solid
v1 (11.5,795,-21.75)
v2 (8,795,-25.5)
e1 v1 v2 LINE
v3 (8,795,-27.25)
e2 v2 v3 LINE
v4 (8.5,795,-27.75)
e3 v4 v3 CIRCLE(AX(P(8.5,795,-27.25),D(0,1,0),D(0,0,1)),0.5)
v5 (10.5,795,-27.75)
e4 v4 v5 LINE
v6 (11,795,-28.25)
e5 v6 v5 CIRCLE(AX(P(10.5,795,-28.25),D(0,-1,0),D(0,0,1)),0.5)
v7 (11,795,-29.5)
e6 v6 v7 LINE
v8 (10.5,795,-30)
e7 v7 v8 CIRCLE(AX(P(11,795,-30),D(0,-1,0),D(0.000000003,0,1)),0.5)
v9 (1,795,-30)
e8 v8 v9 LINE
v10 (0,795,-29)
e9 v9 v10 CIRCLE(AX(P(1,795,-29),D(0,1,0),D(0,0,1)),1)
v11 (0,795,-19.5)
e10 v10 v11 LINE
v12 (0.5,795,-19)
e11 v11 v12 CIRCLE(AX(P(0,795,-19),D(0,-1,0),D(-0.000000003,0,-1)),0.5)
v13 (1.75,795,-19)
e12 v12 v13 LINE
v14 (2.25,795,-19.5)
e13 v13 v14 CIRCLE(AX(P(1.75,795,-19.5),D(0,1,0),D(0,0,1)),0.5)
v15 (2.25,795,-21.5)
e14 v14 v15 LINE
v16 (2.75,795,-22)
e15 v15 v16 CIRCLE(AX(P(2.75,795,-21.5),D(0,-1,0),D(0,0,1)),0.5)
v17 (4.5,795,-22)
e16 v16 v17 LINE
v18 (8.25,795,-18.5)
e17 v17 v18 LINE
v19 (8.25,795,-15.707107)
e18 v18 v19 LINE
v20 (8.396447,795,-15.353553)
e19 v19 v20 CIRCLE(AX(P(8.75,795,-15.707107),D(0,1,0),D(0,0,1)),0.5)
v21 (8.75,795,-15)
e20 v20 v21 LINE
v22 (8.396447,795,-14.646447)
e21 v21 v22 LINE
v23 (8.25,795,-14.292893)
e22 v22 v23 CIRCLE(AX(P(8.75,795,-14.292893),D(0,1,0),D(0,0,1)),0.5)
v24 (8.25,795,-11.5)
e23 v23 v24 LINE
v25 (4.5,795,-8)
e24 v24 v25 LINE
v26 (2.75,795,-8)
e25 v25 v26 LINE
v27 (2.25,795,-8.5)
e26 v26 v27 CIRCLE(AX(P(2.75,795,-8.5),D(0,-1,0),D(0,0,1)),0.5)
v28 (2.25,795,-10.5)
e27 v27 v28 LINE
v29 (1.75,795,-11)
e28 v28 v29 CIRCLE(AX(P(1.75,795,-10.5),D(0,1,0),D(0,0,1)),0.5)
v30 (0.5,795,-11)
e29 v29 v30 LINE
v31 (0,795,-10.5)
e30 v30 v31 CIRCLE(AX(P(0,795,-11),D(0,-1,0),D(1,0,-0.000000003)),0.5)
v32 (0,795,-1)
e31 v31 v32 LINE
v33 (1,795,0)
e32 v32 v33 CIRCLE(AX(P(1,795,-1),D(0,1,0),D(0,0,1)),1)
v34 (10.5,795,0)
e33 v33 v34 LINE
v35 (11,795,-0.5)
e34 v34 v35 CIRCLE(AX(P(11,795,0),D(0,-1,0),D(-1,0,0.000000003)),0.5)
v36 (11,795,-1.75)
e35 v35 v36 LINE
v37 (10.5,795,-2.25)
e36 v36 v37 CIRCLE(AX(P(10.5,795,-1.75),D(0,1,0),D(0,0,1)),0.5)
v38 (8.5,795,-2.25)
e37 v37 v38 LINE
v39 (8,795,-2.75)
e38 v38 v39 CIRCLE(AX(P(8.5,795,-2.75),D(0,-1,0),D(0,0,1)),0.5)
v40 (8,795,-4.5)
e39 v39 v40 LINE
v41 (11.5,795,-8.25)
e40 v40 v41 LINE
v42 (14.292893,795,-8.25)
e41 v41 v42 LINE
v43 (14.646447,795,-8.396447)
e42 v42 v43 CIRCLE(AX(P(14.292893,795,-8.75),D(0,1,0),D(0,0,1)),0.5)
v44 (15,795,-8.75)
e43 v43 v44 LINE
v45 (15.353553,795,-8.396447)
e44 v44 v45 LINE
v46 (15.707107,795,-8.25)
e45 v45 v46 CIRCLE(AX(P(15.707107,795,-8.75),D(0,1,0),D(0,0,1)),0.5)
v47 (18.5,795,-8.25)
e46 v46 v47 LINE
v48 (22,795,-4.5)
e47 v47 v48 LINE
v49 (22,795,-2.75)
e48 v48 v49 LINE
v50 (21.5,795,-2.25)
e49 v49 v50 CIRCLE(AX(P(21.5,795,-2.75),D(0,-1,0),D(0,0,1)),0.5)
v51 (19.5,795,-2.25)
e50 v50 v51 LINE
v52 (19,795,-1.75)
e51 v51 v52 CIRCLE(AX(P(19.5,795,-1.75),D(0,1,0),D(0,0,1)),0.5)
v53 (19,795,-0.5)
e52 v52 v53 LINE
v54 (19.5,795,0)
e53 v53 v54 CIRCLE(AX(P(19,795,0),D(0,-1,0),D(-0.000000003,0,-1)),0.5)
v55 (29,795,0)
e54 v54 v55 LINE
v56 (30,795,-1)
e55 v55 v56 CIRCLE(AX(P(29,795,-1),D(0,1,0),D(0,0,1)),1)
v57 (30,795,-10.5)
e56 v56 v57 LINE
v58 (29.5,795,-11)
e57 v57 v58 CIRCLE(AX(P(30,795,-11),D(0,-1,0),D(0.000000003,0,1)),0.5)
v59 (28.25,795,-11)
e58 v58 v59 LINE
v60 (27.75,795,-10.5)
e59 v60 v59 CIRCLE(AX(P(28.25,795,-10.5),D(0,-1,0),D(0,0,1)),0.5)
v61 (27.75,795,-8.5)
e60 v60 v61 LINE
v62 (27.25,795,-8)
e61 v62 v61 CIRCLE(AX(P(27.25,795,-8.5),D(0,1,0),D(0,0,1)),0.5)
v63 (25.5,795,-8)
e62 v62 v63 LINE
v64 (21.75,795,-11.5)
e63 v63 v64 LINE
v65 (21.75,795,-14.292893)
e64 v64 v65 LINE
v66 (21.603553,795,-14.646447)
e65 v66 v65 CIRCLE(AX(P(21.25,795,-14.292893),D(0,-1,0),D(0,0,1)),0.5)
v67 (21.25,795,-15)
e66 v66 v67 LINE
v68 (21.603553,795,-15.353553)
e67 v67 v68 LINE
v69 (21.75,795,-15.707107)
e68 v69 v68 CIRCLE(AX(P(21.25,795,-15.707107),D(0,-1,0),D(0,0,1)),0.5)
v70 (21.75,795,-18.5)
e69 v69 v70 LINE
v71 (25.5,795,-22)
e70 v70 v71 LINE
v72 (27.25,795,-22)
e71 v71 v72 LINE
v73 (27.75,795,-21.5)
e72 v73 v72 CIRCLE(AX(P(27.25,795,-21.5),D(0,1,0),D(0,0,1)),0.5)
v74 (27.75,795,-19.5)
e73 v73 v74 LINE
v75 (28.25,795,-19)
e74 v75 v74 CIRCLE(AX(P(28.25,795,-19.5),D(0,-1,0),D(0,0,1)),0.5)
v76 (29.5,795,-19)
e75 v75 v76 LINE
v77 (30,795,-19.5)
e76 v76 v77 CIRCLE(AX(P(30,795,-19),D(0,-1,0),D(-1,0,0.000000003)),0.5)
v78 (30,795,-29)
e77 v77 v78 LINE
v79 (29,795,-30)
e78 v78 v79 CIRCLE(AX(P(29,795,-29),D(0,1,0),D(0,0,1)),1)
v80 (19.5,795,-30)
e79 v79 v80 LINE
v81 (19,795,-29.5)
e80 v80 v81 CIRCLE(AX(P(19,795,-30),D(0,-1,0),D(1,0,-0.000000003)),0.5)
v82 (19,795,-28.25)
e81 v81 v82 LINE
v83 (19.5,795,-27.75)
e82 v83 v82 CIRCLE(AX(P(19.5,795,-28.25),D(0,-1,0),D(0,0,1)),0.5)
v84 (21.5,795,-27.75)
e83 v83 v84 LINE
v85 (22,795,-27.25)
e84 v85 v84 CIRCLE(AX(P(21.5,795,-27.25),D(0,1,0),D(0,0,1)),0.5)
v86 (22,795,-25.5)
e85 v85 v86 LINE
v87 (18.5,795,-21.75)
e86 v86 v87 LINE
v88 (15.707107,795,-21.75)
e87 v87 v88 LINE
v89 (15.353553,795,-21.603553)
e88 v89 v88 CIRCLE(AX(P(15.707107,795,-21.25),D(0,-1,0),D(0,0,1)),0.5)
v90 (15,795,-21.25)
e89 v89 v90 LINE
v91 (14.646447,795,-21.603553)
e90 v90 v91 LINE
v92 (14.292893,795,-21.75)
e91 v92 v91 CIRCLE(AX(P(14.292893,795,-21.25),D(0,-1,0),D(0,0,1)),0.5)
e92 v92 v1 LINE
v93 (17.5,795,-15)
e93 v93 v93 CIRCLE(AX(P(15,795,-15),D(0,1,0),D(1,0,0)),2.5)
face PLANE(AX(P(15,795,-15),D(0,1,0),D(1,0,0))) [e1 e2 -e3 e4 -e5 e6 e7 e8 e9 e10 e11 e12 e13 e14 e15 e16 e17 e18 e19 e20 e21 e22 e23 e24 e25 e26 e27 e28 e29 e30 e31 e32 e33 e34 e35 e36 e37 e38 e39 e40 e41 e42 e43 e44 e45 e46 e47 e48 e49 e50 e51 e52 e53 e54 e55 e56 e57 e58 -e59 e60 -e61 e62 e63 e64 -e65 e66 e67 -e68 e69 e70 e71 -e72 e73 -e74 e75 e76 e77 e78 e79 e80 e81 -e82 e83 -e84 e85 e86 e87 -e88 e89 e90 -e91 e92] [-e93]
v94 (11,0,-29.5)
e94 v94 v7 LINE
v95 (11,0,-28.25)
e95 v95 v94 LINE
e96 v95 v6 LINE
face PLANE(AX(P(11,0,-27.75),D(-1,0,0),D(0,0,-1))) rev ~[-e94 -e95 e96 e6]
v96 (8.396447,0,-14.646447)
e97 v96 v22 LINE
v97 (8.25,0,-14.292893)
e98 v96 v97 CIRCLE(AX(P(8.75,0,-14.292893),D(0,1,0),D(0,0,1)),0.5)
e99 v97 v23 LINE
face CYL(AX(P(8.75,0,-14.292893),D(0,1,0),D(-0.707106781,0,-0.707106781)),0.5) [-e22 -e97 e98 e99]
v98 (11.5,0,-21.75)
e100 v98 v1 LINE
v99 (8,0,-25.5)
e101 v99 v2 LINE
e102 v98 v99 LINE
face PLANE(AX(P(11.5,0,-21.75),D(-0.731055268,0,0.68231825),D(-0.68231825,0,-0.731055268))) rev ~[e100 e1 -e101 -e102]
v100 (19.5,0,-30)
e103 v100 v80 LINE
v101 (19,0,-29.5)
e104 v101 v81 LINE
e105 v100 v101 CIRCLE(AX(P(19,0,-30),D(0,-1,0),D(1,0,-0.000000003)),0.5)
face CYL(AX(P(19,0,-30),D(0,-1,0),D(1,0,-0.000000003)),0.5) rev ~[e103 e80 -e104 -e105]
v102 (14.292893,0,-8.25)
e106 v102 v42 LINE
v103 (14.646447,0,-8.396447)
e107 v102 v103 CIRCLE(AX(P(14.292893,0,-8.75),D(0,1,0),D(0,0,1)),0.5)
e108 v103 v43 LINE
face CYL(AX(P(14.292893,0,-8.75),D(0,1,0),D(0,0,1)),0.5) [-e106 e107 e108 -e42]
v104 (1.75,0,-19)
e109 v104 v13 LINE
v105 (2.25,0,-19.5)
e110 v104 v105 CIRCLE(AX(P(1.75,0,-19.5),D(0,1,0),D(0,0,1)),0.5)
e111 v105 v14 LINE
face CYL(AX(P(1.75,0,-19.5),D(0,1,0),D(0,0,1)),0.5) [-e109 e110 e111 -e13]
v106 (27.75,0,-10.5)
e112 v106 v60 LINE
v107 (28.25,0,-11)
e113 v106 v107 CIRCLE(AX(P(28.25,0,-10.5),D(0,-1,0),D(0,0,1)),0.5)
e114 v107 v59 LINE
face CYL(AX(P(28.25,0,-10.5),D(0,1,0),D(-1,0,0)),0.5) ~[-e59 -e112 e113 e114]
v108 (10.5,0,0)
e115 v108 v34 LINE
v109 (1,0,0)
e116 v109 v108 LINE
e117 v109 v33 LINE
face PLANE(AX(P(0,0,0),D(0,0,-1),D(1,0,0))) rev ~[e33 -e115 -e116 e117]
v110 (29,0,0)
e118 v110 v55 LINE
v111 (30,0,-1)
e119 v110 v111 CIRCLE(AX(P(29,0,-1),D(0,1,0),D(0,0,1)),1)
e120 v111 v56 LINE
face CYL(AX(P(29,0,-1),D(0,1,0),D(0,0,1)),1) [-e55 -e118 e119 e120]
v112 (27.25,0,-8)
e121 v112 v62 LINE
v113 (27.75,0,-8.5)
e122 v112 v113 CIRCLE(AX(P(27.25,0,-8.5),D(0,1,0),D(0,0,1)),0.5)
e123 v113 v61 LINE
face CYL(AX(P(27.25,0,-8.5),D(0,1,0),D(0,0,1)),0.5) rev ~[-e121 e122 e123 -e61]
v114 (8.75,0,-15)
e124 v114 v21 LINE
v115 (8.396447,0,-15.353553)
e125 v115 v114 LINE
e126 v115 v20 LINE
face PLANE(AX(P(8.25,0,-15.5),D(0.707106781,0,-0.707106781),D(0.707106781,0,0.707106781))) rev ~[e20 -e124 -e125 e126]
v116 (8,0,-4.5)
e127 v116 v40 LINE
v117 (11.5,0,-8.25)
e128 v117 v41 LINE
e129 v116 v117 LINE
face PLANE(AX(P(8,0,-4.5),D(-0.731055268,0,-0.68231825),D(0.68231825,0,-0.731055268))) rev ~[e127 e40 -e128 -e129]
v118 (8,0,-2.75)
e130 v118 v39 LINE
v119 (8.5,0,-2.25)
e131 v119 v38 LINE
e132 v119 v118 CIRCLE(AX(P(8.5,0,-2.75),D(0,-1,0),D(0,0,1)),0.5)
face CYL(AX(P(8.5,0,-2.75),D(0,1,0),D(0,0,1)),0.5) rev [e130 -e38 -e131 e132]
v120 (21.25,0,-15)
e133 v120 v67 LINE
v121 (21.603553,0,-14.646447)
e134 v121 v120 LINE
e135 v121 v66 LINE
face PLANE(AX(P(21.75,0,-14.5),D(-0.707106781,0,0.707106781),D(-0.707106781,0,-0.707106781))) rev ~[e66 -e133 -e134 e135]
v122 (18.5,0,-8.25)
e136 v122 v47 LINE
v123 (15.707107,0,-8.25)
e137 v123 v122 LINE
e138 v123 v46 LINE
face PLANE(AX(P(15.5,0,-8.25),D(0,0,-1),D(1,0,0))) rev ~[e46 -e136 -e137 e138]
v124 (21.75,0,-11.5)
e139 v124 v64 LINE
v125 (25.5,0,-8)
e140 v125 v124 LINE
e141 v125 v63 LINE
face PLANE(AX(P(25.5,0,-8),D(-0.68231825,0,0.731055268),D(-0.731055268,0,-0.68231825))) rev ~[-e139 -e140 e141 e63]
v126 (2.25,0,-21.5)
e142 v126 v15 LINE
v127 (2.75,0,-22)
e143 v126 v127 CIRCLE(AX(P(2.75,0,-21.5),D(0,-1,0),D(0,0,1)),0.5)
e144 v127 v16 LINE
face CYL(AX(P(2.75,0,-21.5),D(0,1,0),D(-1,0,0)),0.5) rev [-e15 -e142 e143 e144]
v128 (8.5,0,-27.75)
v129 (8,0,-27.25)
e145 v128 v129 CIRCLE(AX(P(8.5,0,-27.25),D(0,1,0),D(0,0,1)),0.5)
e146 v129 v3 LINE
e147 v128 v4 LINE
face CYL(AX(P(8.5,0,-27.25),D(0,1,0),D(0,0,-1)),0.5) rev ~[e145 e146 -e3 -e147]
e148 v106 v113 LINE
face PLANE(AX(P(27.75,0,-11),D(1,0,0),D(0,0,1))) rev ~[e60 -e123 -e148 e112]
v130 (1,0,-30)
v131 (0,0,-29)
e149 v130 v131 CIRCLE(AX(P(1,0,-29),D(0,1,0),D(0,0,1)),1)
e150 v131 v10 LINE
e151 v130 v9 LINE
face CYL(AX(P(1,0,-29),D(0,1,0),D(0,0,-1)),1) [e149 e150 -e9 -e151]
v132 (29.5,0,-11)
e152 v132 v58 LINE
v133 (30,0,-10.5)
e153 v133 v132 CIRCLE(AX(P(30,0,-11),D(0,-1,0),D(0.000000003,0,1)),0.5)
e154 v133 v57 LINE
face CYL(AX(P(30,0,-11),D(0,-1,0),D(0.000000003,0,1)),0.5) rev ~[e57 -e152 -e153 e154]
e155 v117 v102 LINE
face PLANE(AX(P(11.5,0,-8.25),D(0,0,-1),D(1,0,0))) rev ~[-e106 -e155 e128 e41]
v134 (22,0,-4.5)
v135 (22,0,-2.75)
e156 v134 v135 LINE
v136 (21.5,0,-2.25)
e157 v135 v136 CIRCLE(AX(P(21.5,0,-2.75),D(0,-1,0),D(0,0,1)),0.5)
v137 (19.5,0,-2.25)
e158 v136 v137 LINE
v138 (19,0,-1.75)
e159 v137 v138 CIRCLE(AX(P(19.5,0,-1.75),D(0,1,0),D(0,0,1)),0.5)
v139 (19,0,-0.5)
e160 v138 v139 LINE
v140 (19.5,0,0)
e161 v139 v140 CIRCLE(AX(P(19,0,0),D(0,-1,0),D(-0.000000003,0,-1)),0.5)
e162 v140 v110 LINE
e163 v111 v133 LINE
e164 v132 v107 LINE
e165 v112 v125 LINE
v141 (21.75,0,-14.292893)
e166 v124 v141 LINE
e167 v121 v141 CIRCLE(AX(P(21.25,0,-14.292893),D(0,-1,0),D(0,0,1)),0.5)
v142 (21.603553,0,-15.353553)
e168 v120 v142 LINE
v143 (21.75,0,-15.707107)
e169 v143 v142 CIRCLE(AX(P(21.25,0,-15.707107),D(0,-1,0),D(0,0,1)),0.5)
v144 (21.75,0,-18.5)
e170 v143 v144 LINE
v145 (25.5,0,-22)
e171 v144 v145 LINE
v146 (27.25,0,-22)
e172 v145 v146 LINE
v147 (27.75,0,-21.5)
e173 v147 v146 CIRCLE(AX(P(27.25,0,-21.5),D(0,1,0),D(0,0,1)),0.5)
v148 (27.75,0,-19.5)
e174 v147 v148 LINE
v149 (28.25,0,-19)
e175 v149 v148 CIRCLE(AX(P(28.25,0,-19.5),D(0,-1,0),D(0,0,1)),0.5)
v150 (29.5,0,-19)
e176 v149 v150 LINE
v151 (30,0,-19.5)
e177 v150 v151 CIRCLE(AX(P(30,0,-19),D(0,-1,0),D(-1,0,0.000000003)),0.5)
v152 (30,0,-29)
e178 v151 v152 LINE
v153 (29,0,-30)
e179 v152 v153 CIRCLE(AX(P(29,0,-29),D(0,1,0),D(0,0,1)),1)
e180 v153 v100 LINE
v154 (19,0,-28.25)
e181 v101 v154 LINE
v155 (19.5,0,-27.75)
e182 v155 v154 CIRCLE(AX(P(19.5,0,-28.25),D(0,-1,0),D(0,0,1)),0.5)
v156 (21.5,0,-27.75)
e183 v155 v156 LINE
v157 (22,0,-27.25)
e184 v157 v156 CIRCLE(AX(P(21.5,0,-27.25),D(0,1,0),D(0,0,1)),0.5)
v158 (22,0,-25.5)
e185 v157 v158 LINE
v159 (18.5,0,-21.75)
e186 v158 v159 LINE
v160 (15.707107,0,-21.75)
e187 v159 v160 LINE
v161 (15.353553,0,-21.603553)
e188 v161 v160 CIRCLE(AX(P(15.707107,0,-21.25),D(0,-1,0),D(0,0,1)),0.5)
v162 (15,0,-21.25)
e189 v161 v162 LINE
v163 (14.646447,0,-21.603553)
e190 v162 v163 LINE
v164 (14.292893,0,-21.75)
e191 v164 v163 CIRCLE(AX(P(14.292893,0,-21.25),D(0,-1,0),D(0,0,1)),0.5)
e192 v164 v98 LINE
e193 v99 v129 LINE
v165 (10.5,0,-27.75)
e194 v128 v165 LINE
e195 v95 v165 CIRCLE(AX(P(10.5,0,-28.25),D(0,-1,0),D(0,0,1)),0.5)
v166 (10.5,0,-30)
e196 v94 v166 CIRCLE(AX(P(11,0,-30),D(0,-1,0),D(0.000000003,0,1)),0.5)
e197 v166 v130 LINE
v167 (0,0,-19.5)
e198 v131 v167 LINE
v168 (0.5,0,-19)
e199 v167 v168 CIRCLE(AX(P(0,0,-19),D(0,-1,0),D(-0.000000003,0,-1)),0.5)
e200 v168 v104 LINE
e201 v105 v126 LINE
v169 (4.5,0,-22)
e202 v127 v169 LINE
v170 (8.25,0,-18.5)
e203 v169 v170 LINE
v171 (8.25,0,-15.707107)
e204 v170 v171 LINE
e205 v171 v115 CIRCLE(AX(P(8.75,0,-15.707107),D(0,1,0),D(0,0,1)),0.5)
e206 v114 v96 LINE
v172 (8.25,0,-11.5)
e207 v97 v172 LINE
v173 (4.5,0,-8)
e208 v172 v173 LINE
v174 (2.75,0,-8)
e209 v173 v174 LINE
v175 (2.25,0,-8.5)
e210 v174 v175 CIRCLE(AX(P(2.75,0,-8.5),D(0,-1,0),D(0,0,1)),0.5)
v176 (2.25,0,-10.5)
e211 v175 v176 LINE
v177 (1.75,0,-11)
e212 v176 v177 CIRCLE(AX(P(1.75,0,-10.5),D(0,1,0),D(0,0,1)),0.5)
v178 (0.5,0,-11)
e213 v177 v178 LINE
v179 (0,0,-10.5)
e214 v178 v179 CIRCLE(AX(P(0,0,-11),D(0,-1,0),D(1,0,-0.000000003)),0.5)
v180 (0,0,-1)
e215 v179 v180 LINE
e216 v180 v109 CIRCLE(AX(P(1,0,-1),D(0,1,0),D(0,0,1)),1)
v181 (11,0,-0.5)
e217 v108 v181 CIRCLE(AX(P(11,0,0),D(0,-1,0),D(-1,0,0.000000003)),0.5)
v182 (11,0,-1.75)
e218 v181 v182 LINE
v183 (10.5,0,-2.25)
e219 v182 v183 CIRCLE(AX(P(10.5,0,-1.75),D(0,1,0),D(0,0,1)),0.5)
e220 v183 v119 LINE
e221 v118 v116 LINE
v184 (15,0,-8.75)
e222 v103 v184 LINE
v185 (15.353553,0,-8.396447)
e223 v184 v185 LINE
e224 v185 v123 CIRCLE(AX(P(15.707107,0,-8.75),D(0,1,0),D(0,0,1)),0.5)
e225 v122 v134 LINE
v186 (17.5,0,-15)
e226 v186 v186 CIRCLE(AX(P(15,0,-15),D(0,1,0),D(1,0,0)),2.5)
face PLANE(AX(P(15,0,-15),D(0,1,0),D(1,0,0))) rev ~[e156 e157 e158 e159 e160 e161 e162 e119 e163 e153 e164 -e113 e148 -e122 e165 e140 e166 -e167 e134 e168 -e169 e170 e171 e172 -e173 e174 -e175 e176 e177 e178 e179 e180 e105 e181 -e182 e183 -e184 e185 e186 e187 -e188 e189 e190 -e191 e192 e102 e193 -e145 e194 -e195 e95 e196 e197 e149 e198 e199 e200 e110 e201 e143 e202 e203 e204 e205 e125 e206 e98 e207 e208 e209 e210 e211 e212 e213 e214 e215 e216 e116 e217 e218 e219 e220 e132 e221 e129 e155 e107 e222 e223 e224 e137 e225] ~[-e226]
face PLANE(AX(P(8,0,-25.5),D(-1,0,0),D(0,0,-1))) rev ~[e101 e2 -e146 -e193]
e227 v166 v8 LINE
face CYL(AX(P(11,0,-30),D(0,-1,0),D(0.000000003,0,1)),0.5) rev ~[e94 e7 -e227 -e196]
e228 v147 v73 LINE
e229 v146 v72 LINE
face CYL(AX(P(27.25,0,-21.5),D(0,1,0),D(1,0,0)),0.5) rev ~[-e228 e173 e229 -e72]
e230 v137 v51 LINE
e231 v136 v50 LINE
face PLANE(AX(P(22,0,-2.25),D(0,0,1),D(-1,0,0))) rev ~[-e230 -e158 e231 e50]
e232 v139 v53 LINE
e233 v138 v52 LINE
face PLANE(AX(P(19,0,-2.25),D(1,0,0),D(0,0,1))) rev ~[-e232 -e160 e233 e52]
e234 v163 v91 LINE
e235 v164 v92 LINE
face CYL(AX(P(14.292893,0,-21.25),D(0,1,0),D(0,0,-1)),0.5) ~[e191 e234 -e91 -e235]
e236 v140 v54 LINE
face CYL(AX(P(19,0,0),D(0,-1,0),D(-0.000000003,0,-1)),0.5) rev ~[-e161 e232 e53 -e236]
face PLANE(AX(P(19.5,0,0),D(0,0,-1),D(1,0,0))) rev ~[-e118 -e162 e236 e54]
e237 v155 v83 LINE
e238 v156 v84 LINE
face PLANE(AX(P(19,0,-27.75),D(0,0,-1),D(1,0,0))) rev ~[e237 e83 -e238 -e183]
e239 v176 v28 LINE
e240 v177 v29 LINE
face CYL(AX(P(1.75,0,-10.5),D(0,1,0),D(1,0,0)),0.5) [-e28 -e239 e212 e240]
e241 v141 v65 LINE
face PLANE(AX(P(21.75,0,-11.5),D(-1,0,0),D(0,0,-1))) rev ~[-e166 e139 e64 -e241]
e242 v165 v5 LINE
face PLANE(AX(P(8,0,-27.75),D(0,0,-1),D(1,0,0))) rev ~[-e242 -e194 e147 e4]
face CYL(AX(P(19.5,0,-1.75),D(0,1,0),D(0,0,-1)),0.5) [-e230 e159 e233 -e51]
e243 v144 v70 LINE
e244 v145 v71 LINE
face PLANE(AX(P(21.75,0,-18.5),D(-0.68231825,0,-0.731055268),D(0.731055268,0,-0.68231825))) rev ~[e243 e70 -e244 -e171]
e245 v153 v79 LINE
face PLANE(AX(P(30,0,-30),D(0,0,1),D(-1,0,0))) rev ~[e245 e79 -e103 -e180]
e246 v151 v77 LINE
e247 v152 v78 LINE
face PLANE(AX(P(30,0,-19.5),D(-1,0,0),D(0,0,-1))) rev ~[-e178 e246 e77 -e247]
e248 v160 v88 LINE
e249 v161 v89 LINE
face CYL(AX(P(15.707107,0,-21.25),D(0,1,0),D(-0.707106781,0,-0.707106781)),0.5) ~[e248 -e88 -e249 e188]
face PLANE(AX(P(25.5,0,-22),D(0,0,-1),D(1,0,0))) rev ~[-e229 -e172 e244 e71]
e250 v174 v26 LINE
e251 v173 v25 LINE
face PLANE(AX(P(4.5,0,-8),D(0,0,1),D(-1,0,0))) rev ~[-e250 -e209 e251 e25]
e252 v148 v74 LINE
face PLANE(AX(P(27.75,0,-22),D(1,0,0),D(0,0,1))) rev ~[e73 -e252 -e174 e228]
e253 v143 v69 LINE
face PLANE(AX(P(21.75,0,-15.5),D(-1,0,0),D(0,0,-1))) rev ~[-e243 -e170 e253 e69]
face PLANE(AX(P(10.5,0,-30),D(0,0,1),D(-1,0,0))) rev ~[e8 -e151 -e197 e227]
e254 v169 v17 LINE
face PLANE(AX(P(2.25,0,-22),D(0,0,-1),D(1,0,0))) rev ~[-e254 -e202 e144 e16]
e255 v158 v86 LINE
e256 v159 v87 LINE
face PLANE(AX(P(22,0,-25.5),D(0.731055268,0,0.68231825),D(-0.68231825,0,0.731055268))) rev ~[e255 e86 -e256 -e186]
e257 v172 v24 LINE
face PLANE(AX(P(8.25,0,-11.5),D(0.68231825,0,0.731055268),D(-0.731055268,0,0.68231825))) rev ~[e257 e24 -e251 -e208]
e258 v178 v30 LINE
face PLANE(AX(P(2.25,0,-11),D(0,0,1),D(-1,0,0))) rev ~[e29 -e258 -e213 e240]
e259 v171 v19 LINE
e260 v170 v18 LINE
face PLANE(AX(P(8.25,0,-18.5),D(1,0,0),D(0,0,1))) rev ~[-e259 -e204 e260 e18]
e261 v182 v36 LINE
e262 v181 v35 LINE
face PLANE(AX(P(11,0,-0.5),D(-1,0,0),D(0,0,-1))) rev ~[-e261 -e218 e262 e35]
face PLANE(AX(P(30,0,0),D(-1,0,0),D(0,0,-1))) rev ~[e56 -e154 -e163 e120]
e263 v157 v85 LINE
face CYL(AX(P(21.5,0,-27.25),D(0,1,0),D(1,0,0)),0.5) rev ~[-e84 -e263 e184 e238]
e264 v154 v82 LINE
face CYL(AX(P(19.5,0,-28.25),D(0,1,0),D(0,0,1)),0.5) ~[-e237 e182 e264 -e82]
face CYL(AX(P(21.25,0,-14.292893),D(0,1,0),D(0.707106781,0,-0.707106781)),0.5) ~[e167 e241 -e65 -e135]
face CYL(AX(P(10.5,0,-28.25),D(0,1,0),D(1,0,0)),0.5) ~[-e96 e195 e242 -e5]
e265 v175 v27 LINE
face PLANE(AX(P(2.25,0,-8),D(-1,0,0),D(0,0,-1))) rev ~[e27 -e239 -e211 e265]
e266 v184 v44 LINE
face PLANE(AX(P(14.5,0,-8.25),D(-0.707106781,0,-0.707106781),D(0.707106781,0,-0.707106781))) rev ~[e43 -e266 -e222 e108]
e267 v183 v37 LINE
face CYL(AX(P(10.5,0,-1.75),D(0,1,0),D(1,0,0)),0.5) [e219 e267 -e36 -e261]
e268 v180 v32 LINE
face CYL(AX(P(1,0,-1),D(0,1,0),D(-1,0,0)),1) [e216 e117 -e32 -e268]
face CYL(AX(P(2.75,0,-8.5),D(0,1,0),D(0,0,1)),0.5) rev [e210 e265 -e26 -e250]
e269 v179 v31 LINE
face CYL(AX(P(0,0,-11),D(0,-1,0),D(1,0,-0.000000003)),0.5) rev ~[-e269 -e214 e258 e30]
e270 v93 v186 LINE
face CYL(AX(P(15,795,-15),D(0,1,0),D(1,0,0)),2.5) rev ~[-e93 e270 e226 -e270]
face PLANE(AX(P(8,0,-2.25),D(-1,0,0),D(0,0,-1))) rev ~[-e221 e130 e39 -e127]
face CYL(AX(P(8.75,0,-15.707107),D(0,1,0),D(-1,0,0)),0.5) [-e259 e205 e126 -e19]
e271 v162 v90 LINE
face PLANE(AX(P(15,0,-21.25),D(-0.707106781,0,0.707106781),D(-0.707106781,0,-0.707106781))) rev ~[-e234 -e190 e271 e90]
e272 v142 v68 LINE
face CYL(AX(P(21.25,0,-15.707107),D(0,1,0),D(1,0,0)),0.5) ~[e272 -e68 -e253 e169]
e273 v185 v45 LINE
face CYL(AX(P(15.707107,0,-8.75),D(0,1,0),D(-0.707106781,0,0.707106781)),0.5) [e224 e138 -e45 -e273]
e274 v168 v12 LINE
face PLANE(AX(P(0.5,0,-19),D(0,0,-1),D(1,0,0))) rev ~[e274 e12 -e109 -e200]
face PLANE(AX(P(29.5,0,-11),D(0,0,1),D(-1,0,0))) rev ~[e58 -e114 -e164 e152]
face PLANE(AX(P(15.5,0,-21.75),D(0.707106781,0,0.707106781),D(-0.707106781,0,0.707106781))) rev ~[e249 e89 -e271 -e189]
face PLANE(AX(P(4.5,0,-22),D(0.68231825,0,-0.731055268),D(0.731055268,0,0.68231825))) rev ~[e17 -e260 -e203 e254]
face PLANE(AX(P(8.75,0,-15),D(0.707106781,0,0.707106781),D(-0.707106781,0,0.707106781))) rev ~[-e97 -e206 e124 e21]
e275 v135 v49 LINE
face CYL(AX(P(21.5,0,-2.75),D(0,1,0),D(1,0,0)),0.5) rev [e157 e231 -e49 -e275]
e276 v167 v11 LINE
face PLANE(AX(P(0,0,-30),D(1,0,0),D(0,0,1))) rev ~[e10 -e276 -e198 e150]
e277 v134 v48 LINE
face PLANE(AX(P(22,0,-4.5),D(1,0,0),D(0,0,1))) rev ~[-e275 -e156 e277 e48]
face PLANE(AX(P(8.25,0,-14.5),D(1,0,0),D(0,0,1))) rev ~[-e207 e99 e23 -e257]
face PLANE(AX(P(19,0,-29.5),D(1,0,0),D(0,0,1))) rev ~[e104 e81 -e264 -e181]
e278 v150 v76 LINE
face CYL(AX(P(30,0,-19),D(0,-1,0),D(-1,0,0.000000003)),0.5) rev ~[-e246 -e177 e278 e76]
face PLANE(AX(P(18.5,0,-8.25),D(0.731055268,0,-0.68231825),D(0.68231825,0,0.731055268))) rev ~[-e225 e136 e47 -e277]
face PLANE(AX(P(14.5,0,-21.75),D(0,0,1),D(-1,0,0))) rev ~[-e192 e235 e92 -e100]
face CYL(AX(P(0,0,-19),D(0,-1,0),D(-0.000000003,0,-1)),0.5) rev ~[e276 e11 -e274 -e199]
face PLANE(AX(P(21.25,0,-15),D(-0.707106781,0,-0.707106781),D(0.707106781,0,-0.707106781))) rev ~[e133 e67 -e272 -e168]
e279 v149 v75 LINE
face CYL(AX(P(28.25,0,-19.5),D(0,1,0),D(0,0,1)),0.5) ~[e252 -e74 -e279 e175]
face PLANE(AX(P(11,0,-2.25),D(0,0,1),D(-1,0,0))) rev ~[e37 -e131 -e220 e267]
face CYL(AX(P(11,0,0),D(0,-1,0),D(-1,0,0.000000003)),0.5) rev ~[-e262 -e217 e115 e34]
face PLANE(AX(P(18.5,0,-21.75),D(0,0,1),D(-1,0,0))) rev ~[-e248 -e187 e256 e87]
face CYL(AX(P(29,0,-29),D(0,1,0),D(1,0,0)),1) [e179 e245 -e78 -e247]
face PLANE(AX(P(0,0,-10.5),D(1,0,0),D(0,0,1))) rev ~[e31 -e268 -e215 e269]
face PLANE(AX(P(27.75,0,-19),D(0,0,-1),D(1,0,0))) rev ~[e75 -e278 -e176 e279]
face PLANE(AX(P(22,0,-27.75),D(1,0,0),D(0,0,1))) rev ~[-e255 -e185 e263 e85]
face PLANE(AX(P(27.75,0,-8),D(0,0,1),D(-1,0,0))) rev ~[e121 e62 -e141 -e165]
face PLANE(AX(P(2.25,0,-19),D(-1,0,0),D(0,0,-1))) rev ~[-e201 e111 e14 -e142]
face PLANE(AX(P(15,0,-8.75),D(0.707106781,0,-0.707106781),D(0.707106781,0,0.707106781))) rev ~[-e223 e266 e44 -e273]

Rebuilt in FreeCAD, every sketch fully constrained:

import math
import FreeCAD as App
import Part
import Sketcher


def edges_at(feature, points):
    """Names of the edges that pass closest to the given points."""
    edges = feature.Shape.Edges
    near = lambda p: min(range(len(edges)), key=lambda i: edges[i].distToShape(Part.Vertex(*p))[0])
    return sorted({f"Edge{near(p) + 1}" for p in points})

doc = App.newDocument("Part")
params = doc.addObject("Spreadsheet::Sheet", "Params")
for row, (alias, value) in enumerate([
    ("sketch1_radius", "0.5 mm"),
    ("sketch1_width", "3 mm"),
    ("sketch1_width2", "10.5 mm"),
    ("sketch1_width3", "1.75 mm"),
    ("sketch1_width4", "2.25 mm"),
    ("pad1_length", "795 mm"),
    ("fillet_radius", "1 mm"),
    ("sketch2_diameter", "5 mm"),
    ("fillet2_radius", "0.5 mm"),
], start=1):
    params.set(f"A{row}", alias)
    params.set(f"B{row}", "=" + value)
    params.setAlias(f"B{row}", alias)

body = doc.addObject("PartDesign::Body", "Body")

sketch1 = body.newObject("Sketcher::SketchObject", "Sketch")
sketch1.AttachmentSupport = (doc.getObject("XZ_Plane"), [""])
sketch1.MapMode = "FlatFace"
sketch1.addGeometry(Part.LineSegment(App.Vector(11, -27.75, 0), App.Vector(11, -29.5, 0)), False)
sketch1.addGeometry(Part.ArcOfCircle(Part.Circle(App.Vector(11, -30, 0), App.Vector(0, 0, 1), 0.5), math.radians(90), math.radians(180)), False)
sketch1.addGeometry(Part.LineSegment(App.Vector(10.5, -30, 0), App.Vector(0, -30, 0)), False)
sketch1.addGeometry(Part.LineSegment(App.Vector(0, -30, 0), App.Vector(0, -19.5, 0)), False)
sketch1.addGeometry(Part.ArcOfCircle(Part.Circle(App.Vector(0, -19, 0), App.Vector(0, 0, 1), 0.5), math.radians(-90), math.radians(0)), False)
sketch1.addGeometry(Part.LineSegment(App.Vector(0.5, -19, 0), App.Vector(2.25, -19, 0)), False)
sketch1.addGeometry(Part.LineSegment(App.Vector(2.25, -19, 0), App.Vector(2.25, -22, 0)), False)
sketch1.addGeometry(Part.LineSegment(App.Vector(2.25, -22, 0), App.Vector(4.5, -22, 0)), False)
sketch1.addGeometry(Part.LineSegment(App.Vector(4.5, -22, 0), App.Vector(8.25, -18.5, 0)), False)
sketch1.addGeometry(Part.LineSegment(App.Vector(8.25, -18.5, 0), App.Vector(8.25, -15.5, 0)), False)
sketch1.addGeometry(Part.LineSegment(App.Vector(8.25, -15.5, 0), App.Vector(8.75, -15, 0)), False)
sketch1.addGeometry(Part.LineSegment(App.Vector(8.75, -15, 0), App.Vector(8.25, -14.5, 0)), False)
sketch1.addGeometry(Part.LineSegment(App.Vector(8.25, -14.5, 0), App.Vector(8.25, -11.5, 0)), False)
sketch1.addGeometry(Part.LineSegment(App.Vector(8.25, -11.5, 0), App.Vector(4.5, -8, 0)), False)
sketch1.addGeometry(Part.LineSegment(App.Vector(4.5, -8, 0), App.Vector(2.25, -8, 0)), False)
sketch1.addGeometry(Part.LineSegment(App.Vector(2.25, -8, 0), App.Vector(2.25, -11, 0)), False)
sketch1.addGeometry(Part.LineSegment(App.Vector(2.25, -11, 0), App.Vector(0.5, -11, 0)), False)
sketch1.addGeometry(Part.ArcOfCircle(Part.Circle(App.Vector(0, -11, 0), App.Vector(0, 0, 1), 0.5), math.radians(0), math.radians(90)), False)
sketch1.addGeometry(Part.LineSegment(App.Vector(0, -10.5, 0), App.Vector(0, 0, 0)), False)
sketch1.addGeometry(Part.LineSegment(App.Vector(0, 0, 0), App.Vector(10.5, 0, 0)), False)
sketch1.addGeometry(Part.ArcOfCircle(Part.Circle(App.Vector(11, 0, 0), App.Vector(0, 0, 1), 0.5), math.radians(180), math.radians(270)), False)
sketch1.addGeometry(Part.LineSegment(App.Vector(11, -0.5, 0), App.Vector(11, -2.25, 0)), False)
sketch1.addGeometry(Part.LineSegment(App.Vector(11, -2.25, 0), App.Vector(8, -2.25, 0)), False)
sketch1.addGeometry(Part.LineSegment(App.Vector(8, -2.25, 0), App.Vector(8, -4.5, 0)), False)
sketch1.addGeometry(Part.LineSegment(App.Vector(8, -4.5, 0), App.Vector(11.5, -8.25, 0)), False)
sketch1.addGeometry(Part.LineSegment(App.Vector(11.5, -8.25, 0), App.Vector(14.5, -8.25, 0)), False)
sketch1.addGeometry(Part.LineSegment(App.Vector(14.5, -8.25, 0), App.Vector(15, -8.75, 0)), False)
sketch1.addGeometry(Part.LineSegment(App.Vector(15, -8.75, 0), App.Vector(15.5, -8.25, 0)), False)
sketch1.addGeometry(Part.LineSegment(App.Vector(15.5, -8.25, 0), App.Vector(18.5, -8.25, 0)), False)
sketch1.addGeometry(Part.LineSegment(App.Vector(18.5, -8.25, 0), App.Vector(22, -4.5, 0)), False)
sketch1.addGeometry(Part.LineSegment(App.Vector(22, -4.5, 0), App.Vector(22, -2.25, 0)), False)
sketch1.addGeometry(Part.LineSegment(App.Vector(22, -2.25, 0), App.Vector(19, -2.25, 0)), False)
sketch1.addGeometry(Part.LineSegment(App.Vector(19, -2.25, 0), App.Vector(19, -0.5, 0)), False)
sketch1.addGeometry(Part.ArcOfCircle(Part.Circle(App.Vector(19, 0, 0), App.Vector(0, 0, 1), 0.5), math.radians(-90), math.radians(0)), False)
sketch1.addGeometry(Part.LineSegment(App.Vector(19.5, 0, 0), App.Vector(30, 0, 0)), False)
sketch1.addGeometry(Part.LineSegment(App.Vector(30, 0, 0), App.Vector(30, -10.5, 0)), False)
sketch1.addGeometry(Part.ArcOfCircle(Part.Circle(App.Vector(30, -11, 0), App.Vector(0, 0, 1), 0.5), math.radians(90), math.radians(180)), False)
sketch1.addGeometry(Part.LineSegment(App.Vector(29.5, -11, 0), App.Vector(27.75, -11, 0)), False)
sketch1.addGeometry(Part.LineSegment(App.Vector(27.75, -11, 0), App.Vector(27.75, -8, 0)), False)
sketch1.addGeometry(Part.LineSegment(App.Vector(27.75, -8, 0), App.Vector(25.5, -8, 0)), False)
sketch1.addGeometry(Part.LineSegment(App.Vector(25.5, -8, 0), App.Vector(21.75, -11.5, 0)), False)
sketch1.addGeometry(Part.LineSegment(App.Vector(21.75, -11.5, 0), App.Vector(21.75, -14.5, 0)), False)
sketch1.addGeometry(Part.LineSegment(App.Vector(21.75, -14.5, 0), App.Vector(21.25, -15, 0)), False)
sketch1.addGeometry(Part.LineSegment(App.Vector(21.25, -15, 0), App.Vector(21.75, -15.5, 0)), False)
sketch1.addGeometry(Part.LineSegment(App.Vector(21.75, -15.5, 0), App.Vector(21.75, -18.5, 0)), False)
sketch1.addGeometry(Part.LineSegment(App.Vector(21.75, -18.5, 0), App.Vector(25.5, -22, 0)), False)
sketch1.addGeometry(Part.LineSegment(App.Vector(25.5, -22, 0), App.Vector(27.75, -22, 0)), False)
sketch1.addGeometry(Part.LineSegment(App.Vector(27.75, -22, 0), App.Vector(27.75, -19, 0)), False)
sketch1.addGeometry(Part.LineSegment(App.Vector(27.75, -19, 0), App.Vector(29.5, -19, 0)), False)
sketch1.addGeometry(Part.ArcOfCircle(Part.Circle(App.Vector(30, -19, 0), App.Vector(0, 0, 1), 0.5), math.radians(180), math.radians(270)), False)
sketch1.addGeometry(Part.LineSegment(App.Vector(30, -19.5, 0), App.Vector(30, -30, 0)), False)
sketch1.addGeometry(Part.LineSegment(App.Vector(30, -30, 0), App.Vector(19.5, -30, 0)), False)
sketch1.addGeometry(Part.ArcOfCircle(Part.Circle(App.Vector(19, -30, 0), App.Vector(0, 0, 1), 0.5), math.radians(0), math.radians(90)), False)
sketch1.addGeometry(Part.LineSegment(App.Vector(19, -29.5, 0), App.Vector(19, -27.75, 0)), False)
sketch1.addGeometry(Part.LineSegment(App.Vector(19, -27.75, 0), App.Vector(22, -27.75, 0)), False)
sketch1.addGeometry(Part.LineSegment(App.Vector(22, -27.75, 0), App.Vector(22, -25.5, 0)), False)
sketch1.addGeometry(Part.LineSegment(App.Vector(22, -25.5, 0), App.Vector(18.5, -21.75, 0)), False)
sketch1.addGeometry(Part.LineSegment(App.Vector(18.5, -21.75, 0), App.Vector(15.5, -21.75, 0)), False)
sketch1.addGeometry(Part.LineSegment(App.Vector(15.5, -21.75, 0), App.Vector(15, -21.25, 0)), False)
sketch1.addGeometry(Part.LineSegment(App.Vector(15, -21.25, 0), App.Vector(14.5, -21.75, 0)), False)
sketch1.addGeometry(Part.LineSegment(App.Vector(14.5, -21.75, 0), App.Vector(11.5, -21.75, 0)), False)
sketch1.addGeometry(Part.LineSegment(App.Vector(11.5, -21.75, 0), App.Vector(8, -25.5, 0)), False)
sketch1.addGeometry(Part.LineSegment(App.Vector(8, -25.5, 0), App.Vector(8, -27.75, 0)), False)
sketch1.addGeometry(Part.LineSegment(App.Vector(8, -27.75, 0), App.Vector(11, -27.75, 0)), False)
sketch1.addConstraint(Sketcher.Constraint("Coincident", 0, 2, 1, 1))
sketch1.addConstraint(Sketcher.Constraint("Coincident", 1, 2, 2, 1))
sketch1.addConstraint(Sketcher.Constraint("Coincident", 2, 2, 3, 1))
sketch1.addConstraint(Sketcher.Constraint("Coincident", 3, 2, 4, 1))
sketch1.addConstraint(Sketcher.Constraint("Coincident", 4, 2, 5, 1))
sketch1.addConstraint(Sketcher.Constraint("Coincident", 5, 2, 6, 1))
sketch1.addConstraint(Sketcher.Constraint("Coincident", 6, 2, 7, 1))
sketch1.addConstraint(Sketcher.Constraint("Coincident", 7, 2, 8, 1))
sketch1.addConstraint(Sketcher.Constraint("Coincident", 8, 2, 9, 1))
sketch1.addConstraint(Sketcher.Constraint("Coincident", 9, 2, 10, 1))
sketch1.addConstraint(Sketcher.Constraint("Coincident", 10, 2, 11, 1))
sketch1.addConstraint(Sketcher.Constraint("Coincident", 11, 2, 12, 1))
sketch1.addConstraint(Sketcher.Constraint("Coincident", 12, 2, 13, 1))
sketch1.addConstraint(Sketcher.Constraint("Coincident", 13, 2, 14, 1))
sketch1.addConstraint(Sketcher.Constraint("Coincident", 14, 2, 15, 1))
sketch1.addConstraint(Sketcher.Constraint("Coincident", 15, 2, 16, 1))
sketch1.addConstraint(Sketcher.Constraint("Coincident", 16, 2, 17, 1))
sketch1.addConstraint(Sketcher.Constraint("Coincident", 17, 2, 18, 1))
sketch1.addConstraint(Sketcher.Constraint("Coincident", 18, 2, 19, 1))
sketch1.addConstraint(Sketcher.Constraint("Coincident", 19, 2, 20, 1))
sketch1.addConstraint(Sketcher.Constraint("Coincident", 20, 2, 21, 1))
sketch1.addConstraint(Sketcher.Constraint("Coincident", 21, 2, 22, 1))
sketch1.addConstraint(Sketcher.Constraint("Coincident", 22, 2, 23, 1))
sketch1.addConstraint(Sketcher.Constraint("Coincident", 23, 2, 24, 1))
sketch1.addConstraint(Sketcher.Constraint("Coincident", 24, 2, 25, 1))
sketch1.addConstraint(Sketcher.Constraint("Coincident", 25, 2, 26, 1))
sketch1.addConstraint(Sketcher.Constraint("Coincident", 26, 2, 27, 1))
sketch1.addConstraint(Sketcher.Constraint("Coincident", 27, 2, 28, 1))
sketch1.addConstraint(Sketcher.Constraint("Coincident", 28, 2, 29, 1))
sketch1.addConstraint(Sketcher.Constraint("Coincident", 29, 2, 30, 1))
sketch1.addConstraint(Sketcher.Constraint("Coincident", 30, 2, 31, 1))
sketch1.addConstraint(Sketcher.Constraint("Coincident", 31, 2, 32, 1))
sketch1.addConstraint(Sketcher.Constraint("Coincident", 32, 2, 33, 1))
sketch1.addConstraint(Sketcher.Constraint("Coincident", 33, 2, 34, 1))
sketch1.addConstraint(Sketcher.Constraint("Coincident", 34, 2, 35, 1))
sketch1.addConstraint(Sketcher.Constraint("Coincident", 35, 2, 36, 1))
sketch1.addConstraint(Sketcher.Constraint("Coincident", 36, 2, 37, 1))
sketch1.addConstraint(Sketcher.Constraint("Coincident", 37, 2, 38, 1))
sketch1.addConstraint(Sketcher.Constraint("Coincident", 38, 2, 39, 1))
sketch1.addConstraint(Sketcher.Constraint("Coincident", 39, 2, 40, 1))
sketch1.addConstraint(Sketcher.Constraint("Coincident", 40, 2, 41, 1))
sketch1.addConstraint(Sketcher.Constraint("Coincident", 41, 2, 42, 1))
sketch1.addConstraint(Sketcher.Constraint("Coincident", 42, 2, 43, 1))
sketch1.addConstraint(Sketcher.Constraint("Coincident", 43, 2, 44, 1))
sketch1.addConstraint(Sketcher.Constraint("Coincident", 44, 2, 45, 1))
sketch1.addConstraint(Sketcher.Constraint("Coincident", 45, 2, 46, 1))
sketch1.addConstraint(Sketcher.Constraint("Coincident", 46, 2, 47, 1))
sketch1.addConstraint(Sketcher.Constraint("Coincident", 47, 2, 48, 1))
sketch1.addConstraint(Sketcher.Constraint("Coincident", 48, 2, 49, 1))
sketch1.addConstraint(Sketcher.Constraint("Coincident", 49, 2, 50, 1))
sketch1.addConstraint(Sketcher.Constraint("Coincident", 50, 2, 51, 1))
sketch1.addConstraint(Sketcher.Constraint("Coincident", 51, 2, 52, 1))
sketch1.addConstraint(Sketcher.Constraint("Coincident", 52, 2, 53, 1))
sketch1.addConstraint(Sketcher.Constraint("Coincident", 53, 2, 54, 1))
sketch1.addConstraint(Sketcher.Constraint("Coincident", 54, 2, 55, 1))
sketch1.addConstraint(Sketcher.Constraint("Coincident", 55, 2, 56, 1))
sketch1.addConstraint(Sketcher.Constraint("Coincident", 56, 2, 57, 1))
sketch1.addConstraint(Sketcher.Constraint("Coincident", 57, 2, 58, 1))
sketch1.addConstraint(Sketcher.Constraint("Coincident", 58, 2, 59, 1))
sketch1.addConstraint(Sketcher.Constraint("Coincident", 59, 2, 60, 1))
sketch1.addConstraint(Sketcher.Constraint("Coincident", 60, 2, 61, 1))
sketch1.addConstraint(Sketcher.Constraint("Coincident", 61, 2, 62, 1))
sketch1.addConstraint(Sketcher.Constraint("Coincident", 62, 2, 63, 1))
sketch1.addConstraint(Sketcher.Constraint("Coincident", 63, 2, 0, 1))
sketch1.addConstraint(Sketcher.Constraint("Vertical", 0))
sketch1.addConstraint(Sketcher.Constraint("Horizontal", 2))
sketch1.addConstraint(Sketcher.Constraint("Vertical", 3))
sketch1.addConstraint(Sketcher.Constraint("Horizontal", 5))
sketch1.addConstraint(Sketcher.Constraint("Vertical", 6))
sketch1.addConstraint(Sketcher.Constraint("Horizontal", 7))
sketch1.addConstraint(Sketcher.Constraint("Vertical", 9))
sketch1.addConstraint(Sketcher.Constraint("Vertical", 12))
sketch1.addConstraint(Sketcher.Constraint("Horizontal", 14))
sketch1.addConstraint(Sketcher.Constraint("Vertical", 15))
sketch1.addConstraint(Sketcher.Constraint("Horizontal", 16))
sketch1.addConstraint(Sketcher.Constraint("Vertical", 18))
sketch1.addConstraint(Sketcher.Constraint("Horizontal", 19))
sketch1.addConstraint(Sketcher.Constraint("Vertical", 21))
sketch1.addConstraint(Sketcher.Constraint("Horizontal", 22))
sketch1.addConstraint(Sketcher.Constraint("Vertical", 23))
sketch1.addConstraint(Sketcher.Constraint("Horizontal", 25))
sketch1.addConstraint(Sketcher.Constraint("Horizontal", 28))
sketch1.addConstraint(Sketcher.Constraint("Vertical", 30))
sketch1.addConstraint(Sketcher.Constraint("Horizontal", 31))
sketch1.addConstraint(Sketcher.Constraint("Vertical", 32))
sketch1.addConstraint(Sketcher.Constraint("Horizontal", 34))
sketch1.addConstraint(Sketcher.Constraint("Vertical", 35))
sketch1.addConstraint(Sketcher.Constraint("Horizontal", 37))
sketch1.addConstraint(Sketcher.Constraint("Vertical", 38))
sketch1.addConstraint(Sketcher.Constraint("Horizontal", 39))
sketch1.addConstraint(Sketcher.Constraint("Vertical", 41))
sketch1.addConstraint(Sketcher.Constraint("Vertical", 44))
sketch1.addConstraint(Sketcher.Constraint("Horizontal", 46))
sketch1.addConstraint(Sketcher.Constraint("Vertical", 47))
sketch1.addConstraint(Sketcher.Constraint("Horizontal", 48))
sketch1.addConstraint(Sketcher.Constraint("Vertical", 50))
sketch1.addConstraint(Sketcher.Constraint("Horizontal", 51))
sketch1.addConstraint(Sketcher.Constraint("Vertical", 53))
sketch1.addConstraint(Sketcher.Constraint("Horizontal", 54))
sketch1.addConstraint(Sketcher.Constraint("Vertical", 55))
sketch1.addConstraint(Sketcher.Constraint("Horizontal", 57))
sketch1.addConstraint(Sketcher.Constraint("Horizontal", 60))
sketch1.addConstraint(Sketcher.Constraint("Vertical", 62))
sketch1.addConstraint(Sketcher.Constraint("Horizontal", 63))
sketch1.addConstraint(Sketcher.Constraint("Coincident", 18, 2, -1, 1))
sketch1.addConstraint(Sketcher.Constraint("Equal", 1, 4))
sketch1.addConstraint(Sketcher.Constraint("Equal", 4, 17))
sketch1.addConstraint(Sketcher.Constraint("Equal", 17, 20))
sketch1.addConstraint(Sketcher.Constraint("Equal", 20, 33))
sketch1.addConstraint(Sketcher.Constraint("Equal", 33, 36))
sketch1.addConstraint(Sketcher.Constraint("Equal", 36, 49))
sketch1.addConstraint(Sketcher.Constraint("Equal", 49, 52))
sketch1.addConstraint(Sketcher.Constraint("PointOnObject", 4, 3, -2))
sketch1.addConstraint(Sketcher.Constraint("PointOnObject", 17, 3, -2))
sketch1.addConstraint(Sketcher.Constraint("PointOnObject", 20, 3, -1))
sketch1.addConstraint(Sketcher.Constraint("PointOnObject", 33, 3, -1))
sketch1.addConstraint(Sketcher.Constraint("PointOnObject", 2, 2, -2))
sketch1.addConstraint(Sketcher.Constraint("PointOnObject", 33, 2, -1))
sketch1.addConstraint(Sketcher.Constraint("Perpendicular", 10, 11))
sketch1.addConstraint(Sketcher.Constraint("Perpendicular", 8, 24))
sketch1.addConstraint(Sketcher.Constraint("Parallel", 11, 26))
sketch1.addConstraint(Sketcher.Constraint("Perpendicular", 26, 27))
sketch1.addConstraint(Sketcher.Constraint("Perpendicular", 13, 29))
sketch1.addConstraint(Sketcher.Constraint("Perpendicular", 24, 40))
sketch1.addConstraint(Sketcher.Constraint("Parallel", 27, 42))
sketch1.addConstraint(Sketcher.Constraint("Perpendicular", 42, 43))
sketch1.addConstraint(Sketcher.Constraint("Perpendicular", 29, 45))
sketch1.addConstraint(Sketcher.Constraint("Perpendicular", 40, 56))
sketch1.addConstraint(Sketcher.Constraint("Parallel", 43, 58))
sketch1.addConstraint(Sketcher.Constraint("Perpendicular", 58, 59))
sketch1.addConstraint(Sketcher.Constraint("Perpendicular", 45, 61))
sketch1.addConstraint(Sketcher.Constraint("Horizontal", 17, 3, 36, 3))
sketch1.addConstraint(Sketcher.Constraint("Horizontal", 4, 3, 49, 3))
sketch1.addConstraint(Sketcher.Constraint("Horizontal", 1, 3, 52, 3))
sketch1.addConstraint(Sketcher.Constraint("Horizontal", 52, 3, 1, 2))
sketch1.addConstraint(Sketcher.Constraint("Horizontal", 49, 3, 4, 2))
sketch1.addConstraint(Sketcher.Constraint("Horizontal", 36, 3, 15, 2))
sketch1.addConstraint(Sketcher.Constraint("Horizontal", 25, 2, 27, 2))
sketch1.addConstraint(Sketcher.Constraint("Horizontal", 23, 2, 29, 2))
sketch1.addConstraint(Sketcher.Constraint("Horizontal", 22, 2, 30, 2))
sketch1.addConstraint(Sketcher.Constraint("Horizontal", 16, 2, 36, 2))
sketch1.addConstraint(Sketcher.Constraint("Horizontal", 14, 2, 38, 2))
sketch1.addConstraint(Sketcher.Constraint("Horizontal", 12, 2, 40, 2))
sketch1.addConstraint(Sketcher.Constraint("Horizontal", 11, 2, 41, 2))
sketch1.addConstraint(Sketcher.Constraint("Horizontal", 10, 2, 42, 2))
sketch1.addConstraint(Sketcher.Constraint("Horizontal", 9, 2, 43, 2))
sketch1.addConstraint(Sketcher.Constraint("Horizontal", 8, 2, 44, 2))
sketch1.addConstraint(Sketcher.Constraint("Horizontal", 7, 2, 45, 2))
sketch1.addConstraint(Sketcher.Constraint("Horizontal", 5, 2, 47, 2))
sketch1.addConstraint(Sketcher.Constraint("Horizontal", 2, 2, 50, 2))
sketch1.addConstraint(Sketcher.Constraint("Horizontal", 57, 2, 59, 2))
sketch1.addConstraint(Sketcher.Constraint("Horizontal", 55, 2, 61, 2))
sketch1.addConstraint(Sketcher.Constraint("Horizontal", 54, 2, 62, 2))
sketch1.addConstraint(Sketcher.Constraint("Vertical", 1, 3, 20, 3))
sketch1.addConstraint(Sketcher.Constraint("Vertical", 36, 3, 49, 3))
sketch1.addConstraint(Sketcher.Constraint("Vertical", 33, 3, 52, 3))
sketch1.addConstraint(Sketcher.Constraint("Vertical", 20, 3, 0, 2))
sketch1.addConstraint(Sketcher.Constraint("Vertical", 9, 2, 11, 2))
sketch1.addConstraint(Sketcher.Constraint("Vertical", 7, 2, 13, 2))
sketch1.addConstraint(Sketcher.Constraint("Vertical", 6, 2, 14, 2))
sketch1.addConstraint(Sketcher.Constraint("Vertical", 0, 2, 20, 2))
sketch1.addConstraint(Sketcher.Constraint("Vertical", 52, 3, 31, 2))
sketch1.addConstraint(Sketcher.Constraint("Vertical", 49, 3, 34, 2))
sketch1.addConstraint(Sketcher.Constraint("Vertical", 41, 2, 43, 2))
sketch1.addConstraint(Sketcher.Constraint("Vertical", 39, 2, 45, 2))
sketch1.addConstraint(Sketcher.Constraint("Vertical", 38, 2, 46, 2))
sketch1.addConstraint(Sketcher.Constraint("Vertical", 35, 2, 49, 2))
sketch1.addConstraint(Sketcher.Constraint("Vertical", 32, 2, 52, 2))
sketch1.addConstraint(Sketcher.Constraint("Vertical", 30, 2, 54, 2))
sketch1.addConstraint(Sketcher.Constraint("Vertical", 28, 2, 56, 2))
sketch1.addConstraint(Sketcher.Constraint("Vertical", 27, 2, 57, 2))
sketch1.addConstraint(Sketcher.Constraint("Vertical", 26, 2, 58, 2))
sketch1.addConstraint(Sketcher.Constraint("Vertical", 24, 2, 60, 2))
sketch1.addConstraint(Sketcher.Constraint("Equal", 22, 25))
sketch1.addConstraint(Sketcher.Constraint("Equal", 25, 28))
sketch1.addConstraint(Sketcher.Constraint("Equal", 28, 31))
sketch1.addConstraint(Sketcher.Constraint("Equal", 19, 34))
sketch1.addConstraint(Sketcher.Constraint("Equal", 16, 37))
sketch1.addConstraint(Sketcher.Constraint("Equal", 14, 39))
sketch1.addConstraint(Sketcher.Constraint("Equal", 48, 0))
sketch1.addConstraint(Sketcher.Constraint("Equal", 51, 3))
sketch1.addConstraint(Sketcher.Constraint("Equal", 63, 6))
sketch1.addConstraint(Sketcher.Constraint("Equal", 6, 9))
sketch1.addConstraint(Sketcher.Constraint("Equal", 9, 12))
sketch1.addConstraint(Sketcher.Constraint("Equal", 12, 15))
sketch1.addConstraint(Sketcher.Constraint("Equal", 3, 18))
sketch1.addConstraint(Sketcher.Constraint("Equal", 0, 21))
sketch1.addConstraint(Sketcher.Constraint("Equal", 46, 23))
sketch1.addConstraint(Sketcher.Constraint("Equal", 30, 55))
sketch1.addConstraint(Sketcher.Constraint("Equal", 13, 24))
sketch1.addConstraint(Sketcher.Constraint("Equal", 11, 26))
sketch1.addConstraint(Sketcher.Constraint("Radius", 1, 0.5))
sketch1.addConstraint(Sketcher.Constraint("DistanceX", 22, 2, 22, 1, 3.0))
sketch1.addConstraint(Sketcher.Constraint("DistanceX", 2, 2, 2, 1, 10.5))
sketch1.addConstraint(Sketcher.Constraint("DistanceY", 1, 3, -1, 1, 30.0))
sketch1.addConstraint(Sketcher.Constraint("DistanceX", 5, 1, 5, 2, 1.75))
sketch1.addConstraint(Sketcher.Constraint("DistanceX", 7, 1, 7, 2, 2.25))
sketch1.addConstraint(Sketcher.Constraint("DistanceY", 8, 2, -1, 1, 18.5))
sketch1.addConstraint(Sketcher.Constraint("DistanceX", -1, 1, 8, 2, 8.25))
sketch1.setExpression("Constraints[191]", "Params.sketch1_radius")
sketch1.setExpression("Constraints[192]", "Params.sketch1_width")
sketch1.setExpression("Constraints[193]", "Params.sketch1_width2")
sketch1.setExpression("Constraints[195]", "Params.sketch1_width3")
sketch1.setExpression("Constraints[196]", "Params.sketch1_width4")
pad1 = body.newObject("PartDesign::Pad", "Pad")
pad1.Profile = sketch1
pad1.setExpression("Length", "Params.pad1_length")
pad1.Reversed = True
doc.recompute()

fillet = body.newObject("PartDesign::Fillet", "Fillet")
fillet.Base = (pad1, edges_at(pad1, [
    (30, 397.5, 0),
    (0, 397.5, 0),
    (0, 397.5, -30),
    (30, 397.5, -30),
]))
fillet.setExpression("Radius", "Params.fillet_radius")

sketch2 = body.newObject("Sketcher::SketchObject", "Sketch001")
sketch2.AttachmentSupport = (doc.getObject("XZ_Plane"), [""])
sketch2.MapMode = "FlatFace"
sketch2.AttachmentOffset = App.Placement(App.Vector(0, 0, -795), App.Rotation())
sketch2.addGeometry(Part.Circle(App.Vector(15, -15, 0), App.Vector(0, 0, 1), 2.5), False)
sketch2.addConstraint(Sketcher.Constraint("Diameter", 0, 5.0))
sketch2.addConstraint(Sketcher.Constraint("DistanceX", -1, 1, 0, 3, 15.0))
sketch2.addConstraint(Sketcher.Constraint("DistanceY", 0, 3, -1, 1, 15.0))
sketch2.setExpression("Constraints[0]", "Params.sketch2_diameter")
pocket1 = body.newObject("PartDesign::Pocket", "Pocket")
pocket1.Profile = sketch2
pocket1.Type = "ThroughAll"
pocket1.Reversed = True
doc.recompute()

fillet2 = body.newObject("PartDesign::Fillet", "Fillet001")
fillet2.Base = (pocket1, edges_at(pocket1, [
    (27.75, 397.5, -19),
    (27.75, 397.5, -22),
    (21.75, 397.5, -15.5),
    (21.75, 397.5, -14.5),
    (27.75, 397.5, -8),
    (27.75, 397.5, -11),
    (19, 397.5, -2.25),
    (22, 397.5, -2.25),
    (15.5, 397.5, -8.25),
    (14.5, 397.5, -8.25),
    (8, 397.5, -2.25),
    (11, 397.5, -2.25),
    (2.25, 397.5, -11),
    (2.25, 397.5, -8),
    (8.25, 397.5, -14.5),
    (8.25, 397.5, -15.5),
    (2.25, 397.5, -22),
    (2.25, 397.5, -19),
    (11, 397.5, -27.75),
    (8, 397.5, -27.75),
    (14.5, 397.5, -21.75),
    (15.5, 397.5, -21.75),
    (22, 397.5, -27.75),
    (19, 397.5, -27.75),
]))
fillet2.setExpression("Radius", "Params.fillet2_radius")

doc.recompute()
